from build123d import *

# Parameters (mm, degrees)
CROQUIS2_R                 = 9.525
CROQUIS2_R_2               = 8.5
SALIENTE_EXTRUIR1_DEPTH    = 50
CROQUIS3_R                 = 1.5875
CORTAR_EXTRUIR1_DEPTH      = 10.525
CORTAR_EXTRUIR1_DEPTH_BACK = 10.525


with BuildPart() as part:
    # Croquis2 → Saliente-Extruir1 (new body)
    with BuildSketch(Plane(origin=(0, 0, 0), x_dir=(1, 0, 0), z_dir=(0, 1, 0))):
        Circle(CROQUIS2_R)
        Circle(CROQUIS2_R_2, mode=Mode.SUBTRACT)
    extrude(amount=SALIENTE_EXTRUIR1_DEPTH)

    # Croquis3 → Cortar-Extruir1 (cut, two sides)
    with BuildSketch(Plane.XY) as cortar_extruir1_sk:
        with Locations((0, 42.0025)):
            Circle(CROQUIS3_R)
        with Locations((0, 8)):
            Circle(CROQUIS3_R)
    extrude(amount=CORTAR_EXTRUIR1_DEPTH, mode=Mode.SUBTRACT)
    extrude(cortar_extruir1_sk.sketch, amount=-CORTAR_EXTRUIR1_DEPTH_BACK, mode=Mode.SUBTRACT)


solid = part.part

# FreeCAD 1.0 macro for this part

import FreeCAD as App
import Part
import Sketcher

V = App.Vector
Q = App.Units.Quantity

doc = App.newDocument("Part")
body = doc.addObject("PartDesign::Body", "Body")

# Sketch on XZ plane
sketch1 = body.newObject("Sketcher::SketchObject", "Sketch")
sketch1.AttachmentSupport = (doc.getObject("XZ_Plane"), [""])
sketch1.MapMode = "FlatFace"
sketch1.addGeometry([
    Part.Circle(V(0, 0, 0), V(0, 0, 1), 10),
    Part.Circle(V(0, 0, 0), V(0, 0, 1), 8),
], False)
sketch1.addConstraint([
    Sketcher.Constraint("Coincident", 0, 3, -1, 1),
    Sketcher.Constraint("Coincident", 1, 3, -1, 1),
    Sketcher.Constraint("Diameter", 1, Q("17 mm")),
    Sketcher.Constraint("Diameter", 0, Q("19.05 mm")),
])
pad1 = body.newObject("PartDesign::Pad", "Pad")
pad1.Profile = sketch1
pad1.Length = 50
pad1.Reversed = True

# Sketch on XY plane
sketch2 = body.newObject("Sketcher::SketchObject", "Sketch001")
sketch2.AttachmentSupport = (doc.getObject("XY_Plane"), [""])
sketch2.MapMode = "FlatFace"
sketch2.addGeometry([
    Part.Circle(V(0, 42, 0), V(0, 0, 1), 1.6),
    Part.Circle(V(0, 8, 0), V(0, 0, 1), 1.6),
], False)
sketch2.addConstraint([
    Sketcher.Constraint("Equal", 0, 1),
    Sketcher.Constraint("PointOnObject", 0, 3, -2),
    Sketcher.Constraint("PointOnObject", 1, 3, -2),
    Sketcher.Constraint("Diameter", 0, Q("3.175 mm")),
    Sketcher.Constraint("DistanceY", -1, 1, 1, 3, Q("8 mm")),
    Sketcher.Constraint("DistanceY", -1, 1, 0, 3, Q("42.0025 mm")),
])
pocket1 = body.newObject("PartDesign::Pocket", "Pocket")
pocket1.Profile = sketch2
pocket1.Type = "ThroughAll"
pocket1.Midplane = True

doc.recompute()
